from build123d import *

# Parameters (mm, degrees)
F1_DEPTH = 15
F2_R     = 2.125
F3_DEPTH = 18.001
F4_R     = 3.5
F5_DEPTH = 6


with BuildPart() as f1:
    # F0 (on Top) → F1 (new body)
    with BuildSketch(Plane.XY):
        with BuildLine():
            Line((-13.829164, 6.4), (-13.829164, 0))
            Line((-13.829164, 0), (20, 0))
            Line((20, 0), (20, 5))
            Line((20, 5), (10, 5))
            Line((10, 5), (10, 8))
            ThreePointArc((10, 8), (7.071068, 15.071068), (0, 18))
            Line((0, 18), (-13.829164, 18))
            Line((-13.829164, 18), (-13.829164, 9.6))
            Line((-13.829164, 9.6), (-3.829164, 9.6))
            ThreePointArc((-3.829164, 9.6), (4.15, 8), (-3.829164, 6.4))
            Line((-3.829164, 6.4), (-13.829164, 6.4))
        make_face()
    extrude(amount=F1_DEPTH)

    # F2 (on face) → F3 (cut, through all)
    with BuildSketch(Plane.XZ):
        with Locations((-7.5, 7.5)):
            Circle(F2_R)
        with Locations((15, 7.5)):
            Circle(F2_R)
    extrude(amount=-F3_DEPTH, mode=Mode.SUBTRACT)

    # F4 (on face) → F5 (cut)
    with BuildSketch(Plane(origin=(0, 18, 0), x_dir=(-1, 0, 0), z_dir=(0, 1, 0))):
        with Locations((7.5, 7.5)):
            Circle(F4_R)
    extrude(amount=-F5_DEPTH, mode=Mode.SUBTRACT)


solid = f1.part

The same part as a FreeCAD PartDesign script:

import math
import FreeCAD as App
import Part
import Sketcher

doc = App.newDocument("Part")
params = doc.addObject("Spreadsheet::Sheet", "Params")
for row, (alias, value) in enumerate([
    ("sketch1_radius", "9.999999 mm"),
    ("sketch1_width", "10 mm"),
    ("sketch1_height", "5 mm"),
    ("sketch1_height2", "3 mm"),
    ("sketch1_radius2", "4.15 mm"),
    ("pad1_length", "15 mm"),
    ("sketch2_diameter", "4.25 mm"),
    ("sketch3_diameter", "7 mm"),
    ("pocket2_length", "6 mm"),
], start=1):
    params.set(f"A{row}", alias)
    params.set(f"B{row}", "=" + value)
    params.setAlias(f"B{row}", alias)

body = doc.addObject("PartDesign::Body", "Body")

# Sketch on XY plane
sketch1 = doc.addObject("Sketcher::SketchObject", "Sketch")
body.addObject(sketch1)
sketch1.AttachmentSupport = (doc.XY_Plane, [""])
sketch1.MapMode = "FlatFace"
sketch1.addGeometry([
    Part.LineSegment(App.Vector(-13.8, 6.4, 0), App.Vector(-13.8, 0, 0)),  # 0
    Part.LineSegment(App.Vector(-13.8, 0, 0), App.Vector(20, 0, 0)),  # 1
    Part.LineSegment(App.Vector(20, 0, 0), App.Vector(20, 5, 0)),  # 2
    Part.LineSegment(App.Vector(20, 5, 0), App.Vector(10, 5, 0)),  # 3
    Part.LineSegment(App.Vector(10, 5, 0), App.Vector(10, 8, 0)),  # 4
    Part.ArcOfCircle(Part.Circle(App.Vector(0, 8, 0), App.Vector(0, 0, 1), 10), math.radians(0), math.radians(90)),  # 5
    Part.LineSegment(App.Vector(0, 18, 0), App.Vector(-13.8, 18, 0)),  # 6
    Part.LineSegment(App.Vector(-13.8, 18, 0), App.Vector(-13.8, 9.6, 0)),  # 7
    Part.LineSegment(App.Vector(-13.8, 9.6, 0), App.Vector(-3.8, 9.6, 0)),  # 8
    Part.ArcOfCircle(Part.Circle(App.Vector(0, 8, 0), App.Vector(0, 0, 1), 4.1), math.radians(-157), math.radians(157)),  # 9
    Part.LineSegment(App.Vector(-3.8, 6.4, 0), App.Vector(-13.8, 6.4, 0)),  # 10
], False)
sketch1.addConstraint([
    Sketcher.Constraint("Coincident", 0, 2, 1, 1),
    Sketcher.Constraint("Coincident", 1, 2, 2, 1),
    Sketcher.Constraint("Coincident", 2, 2, 3, 1),
    Sketcher.Constraint("Coincident", 3, 2, 4, 1),
    Sketcher.Constraint("Tangent", 4, 2, 5, 1),
    Sketcher.Constraint("Tangent", 5, 2, 6, 1),
    Sketcher.Constraint("Coincident", 6, 2, 7, 1),
    Sketcher.Constraint("Coincident", 7, 2, 8, 1),
    Sketcher.Constraint("Coincident", 8, 2, 9, 2),
    Sketcher.Constraint("Coincident", 9, 1, 10, 1),
    Sketcher.Constraint("Coincident", 10, 2, 0, 1),
    Sketcher.Constraint("Vertical", 0),
    Sketcher.Constraint("Horizontal", 1),
    Sketcher.Constraint("Vertical", 2),
    Sketcher.Constraint("Horizontal", 3),
    Sketcher.Constraint("Vertical", 4),
    Sketcher.Constraint("Horizontal", 6),
    Sketcher.Constraint("Vertical", 7),
    Sketcher.Constraint("Horizontal", 8),
    Sketcher.Constraint("Horizontal", 10),
    Sketcher.Constraint("Coincident", 9, 3, 5, 3),
    Sketcher.Constraint("PointOnObject", 5, 3, -2),
    Sketcher.Constraint("PointOnObject", 0, 2, -1),
    Sketcher.Constraint("Vertical", 0, 2, 6, 2),
    Sketcher.Constraint("Vertical", 8, 2, 9, 1),
    Sketcher.Constraint("Equal", 3, 8),
    Sketcher.Constraint("Radius", 5, 9.999999),
    Sketcher.Constraint("DistanceX", 3, 2, 3, 1, 10.0),
    Sketcher.Constraint("DistanceY", 2, 1, 2, 2, 5.0),
    Sketcher.Constraint("DistanceY", 4, 1, 4, 2, 3.0),
    Sketcher.Constraint("Radius", 9, 4.15),
    Sketcher.Constraint("DistanceY", 0, 2, 0, 1, 6.4),
])
sketch1.setExpression("Constraints[26]", "Params.sketch1_radius")
sketch1.setExpression("Constraints[27]", "Params.sketch1_width")
sketch1.setExpression("Constraints[28]", "Params.sketch1_height")
sketch1.setExpression("Constraints[29]", "Params.sketch1_height2")
sketch1.setExpression("Constraints[30]", "Params.sketch1_radius2")
pad1 = doc.addObject("PartDesign::Pad", "Pad")
body.addObject(pad1)
pad1.Profile = sketch1
pad1.setExpression("Length", "Params.pad1_length")

# Sketch on XZ plane
sketch2 = doc.addObject("Sketcher::SketchObject", "Sketch001")
body.addObject(sketch2)
sketch2.AttachmentSupport = (doc.XZ_Plane, [""])
sketch2.MapMode = "FlatFace"
sketch2.addGeometry([
    Part.Circle(App.Vector(-7.5, 7.5, 0), App.Vector(0, 0, 1), 2.1),
    Part.Circle(App.Vector(15, 7.5, 0), App.Vector(0, 0, 1), 2.1),
], False)
sketch2.addConstraint([
    Sketcher.Constraint("Equal", 0, 1),
    Sketcher.Constraint("Horizontal", 0, 3, 1, 3),
    Sketcher.Constraint("Diameter", 0, 4.25),
    Sketcher.Constraint("DistanceX", -1, 1, 1, 3, 15.0),
    Sketcher.Constraint("DistanceX", 0, 3, -1, 1, 7.5),
    Sketcher.Constraint("DistanceY", -1, 1, 0, 3, 7.5),
])
sketch2.setExpression("Constraints[2]", "Params.sketch2_diameter")
pocket1 = doc.addObject("PartDesign::Pocket", "Pocket")
body.addObject(pocket1)
pocket1.Profile = sketch2
pocket1.Type = "ThroughAll"

# Sketch on XZ plane
sketch3 = doc.addObject("Sketcher::SketchObject", "Sketch002")
body.addObject(sketch3)
sketch3.AttachmentSupport = (doc.XZ_Plane, [""])
sketch3.MapMode = "FlatFace"
sketch3.AttachmentOffset = App.Placement(App.Vector(0, 0, -18), App.Rotation())
sketch3.addGeometry(Part.Circle(App.Vector(-7.5, 7.5, 0), App.Vector(0, 0, 1), 3.5), False)
sketch3.addConstraint([
    Sketcher.Constraint("Diameter", 0, 7.0),
    Sketcher.Constraint("DistanceX", 0, 3, -1, 1, 7.5),
    Sketcher.Constraint("DistanceY", -1, 1, 0, 3, 7.5),
])
sketch3.setExpression("Constraints[0]", "Params.sketch3_diameter")
pocket2 = doc.addObject("PartDesign::Pocket", "Pocket001")
body.addObject(pocket2)
pocket2.Profile = sketch3
pocket2.setExpression("Length", "Params.pocket2_length")
pocket2.Reversed = True

doc.recompute()
